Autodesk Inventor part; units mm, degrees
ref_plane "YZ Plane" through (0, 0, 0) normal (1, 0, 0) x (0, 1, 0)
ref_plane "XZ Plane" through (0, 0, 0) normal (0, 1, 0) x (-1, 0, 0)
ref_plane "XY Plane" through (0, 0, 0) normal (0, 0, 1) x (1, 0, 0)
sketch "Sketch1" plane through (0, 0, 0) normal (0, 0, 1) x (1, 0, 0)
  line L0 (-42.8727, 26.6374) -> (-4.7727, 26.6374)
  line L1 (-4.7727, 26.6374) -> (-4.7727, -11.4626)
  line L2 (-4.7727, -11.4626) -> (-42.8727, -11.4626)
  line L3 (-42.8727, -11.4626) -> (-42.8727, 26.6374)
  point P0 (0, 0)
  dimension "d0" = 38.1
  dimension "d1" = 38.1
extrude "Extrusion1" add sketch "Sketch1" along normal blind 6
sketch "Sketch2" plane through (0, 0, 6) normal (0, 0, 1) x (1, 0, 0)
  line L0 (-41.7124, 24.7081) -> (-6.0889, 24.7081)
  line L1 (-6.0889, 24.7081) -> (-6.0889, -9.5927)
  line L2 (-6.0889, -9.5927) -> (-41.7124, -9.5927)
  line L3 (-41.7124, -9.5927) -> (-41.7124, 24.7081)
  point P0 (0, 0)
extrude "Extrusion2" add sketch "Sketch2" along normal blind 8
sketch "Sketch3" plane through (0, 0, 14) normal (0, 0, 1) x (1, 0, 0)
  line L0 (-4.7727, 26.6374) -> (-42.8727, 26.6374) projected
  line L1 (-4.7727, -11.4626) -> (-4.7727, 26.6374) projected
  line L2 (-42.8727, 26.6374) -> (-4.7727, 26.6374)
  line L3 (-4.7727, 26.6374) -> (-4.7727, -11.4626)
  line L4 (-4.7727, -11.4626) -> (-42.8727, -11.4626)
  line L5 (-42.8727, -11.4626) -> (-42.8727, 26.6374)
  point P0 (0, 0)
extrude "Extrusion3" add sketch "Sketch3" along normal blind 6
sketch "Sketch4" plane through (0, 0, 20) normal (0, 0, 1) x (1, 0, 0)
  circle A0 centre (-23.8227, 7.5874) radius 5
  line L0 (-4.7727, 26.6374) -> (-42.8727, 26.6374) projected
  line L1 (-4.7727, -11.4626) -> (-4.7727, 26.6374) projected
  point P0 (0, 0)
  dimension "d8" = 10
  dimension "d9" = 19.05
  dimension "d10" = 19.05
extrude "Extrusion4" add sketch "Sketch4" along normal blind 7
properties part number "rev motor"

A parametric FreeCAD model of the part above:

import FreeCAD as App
import Part
import Sketcher


def add_polygon(sketch, points):
    """Adds a closed chain of lines whose ends are joined by coincident constraints."""
    first, n = sketch.GeometryCount, len(points)
    for a, b in zip(points, points[1:] + points[:1]):
        sketch.addGeometry(Part.LineSegment(App.Vector(*a, 0), App.Vector(*b, 0)), False)
    for i in range(n):
        sketch.addConstraint(Sketcher.Constraint("Coincident", first + i, 2, first + (i + 1) % n, 1))

doc = App.newDocument("Part")
params = doc.addObject("Spreadsheet::Sheet", "Params")
for row, (alias, value) in enumerate([
    ("sketch1_width", "38.1 mm"),
    ("pad1_length", "6 mm"),
    ("pad2_length", "8 mm"),
    ("sketch3_width", "38.1 mm"),
    ("pad3_length", "6 mm"),
    ("sketch4_diameter", "10 mm"),
    ("pad4_length", "7 mm"),
], start=1):
    params.set(f"A{row}", alias)
    params.set(f"B{row}", "=" + value)
    params.setAlias(f"B{row}", alias)

body = doc.addObject("PartDesign::Body", "Body")

sketch1 = doc.addObject("Sketcher::SketchObject", "Sketch")
body.addObject(sketch1)
sketch1.AttachmentSupport = (doc.XY_Plane, [""])
sketch1.MapMode = "FlatFace"
add_polygon(sketch1, [(-4.7727, 26.6374), (-42.8727, 26.6374), (-42.8727, -11.4626), (-4.7727, -11.4626)])
sketch1.addConstraint(Sketcher.Constraint("Horizontal", 0))
sketch1.addConstraint(Sketcher.Constraint("Vertical", 1))
sketch1.addConstraint(Sketcher.Constraint("Horizontal", 2))
sketch1.addConstraint(Sketcher.Constraint("Vertical", 3))
sketch1.addConstraint(Sketcher.Constraint("Equal", 2, 1))
sketch1.addConstraint(Sketcher.Constraint("DistanceX", 0, 2, 0, 1, 38.1))
sketch1.addConstraint(Sketcher.Constraint("DistanceX", 0, 2, -1, 1, 42.8727))
sketch1.addConstraint(Sketcher.Constraint("DistanceY", -1, 1, 0, 2, 26.6374))
sketch1.setExpression("Constraints[9]", "Params.sketch1_width")
pad1 = doc.addObject("PartDesign::Pad", "Pad")
body.addObject(pad1)
pad1.Profile = sketch1
pad1.setExpression("Length", "Params.pad1_length")

sketch2 = doc.addObject("Sketcher::SketchObject", "Sketch001")
body.addObject(sketch2)
sketch2.AttachmentSupport = (doc.XY_Plane, [""])
sketch2.MapMode = "FlatFace"
sketch2.AttachmentOffset = App.Placement(App.Vector(0, 0, 6), App.Rotation())
add_polygon(sketch2, [(-6.0889, 24.7081), (-41.7124, 24.7081), (-41.7124, -9.5927), (-6.0889, -9.5927)])
sketch2.addConstraint(Sketcher.Constraint("Horizontal", 0))
sketch2.addConstraint(Sketcher.Constraint("Vertical", 1))
sketch2.addConstraint(Sketcher.Constraint("Horizontal", 2))
sketch2.addConstraint(Sketcher.Constraint("Vertical", 3))
sketch2.addConstraint(Sketcher.Constraint("DistanceX", 0, 2, 0, 1, 35.6235))
sketch2.addConstraint(Sketcher.Constraint("DistanceY", 1, 2, 1, 1, 34.3008))
sketch2.addConstraint(Sketcher.Constraint("DistanceY", -1, 1, 0, 2, 24.708))
sketch2.addConstraint(Sketcher.Constraint("DistanceX", 2, 2, -1, 1, 6.089))
pad2 = doc.addObject("PartDesign::Pad", "Pad001")
body.addObject(pad2)
pad2.Profile = sketch2
pad2.setExpression("Length", "Params.pad2_length")

sketch3 = doc.addObject("Sketcher::SketchObject", "Sketch002")
body.addObject(sketch3)
sketch3.AttachmentSupport = (doc.XY_Plane, [""])
sketch3.MapMode = "FlatFace"
sketch3.AttachmentOffset = App.Placement(App.Vector(0, 0, 14), App.Rotation())
add_polygon(sketch3, [(-4.7727, -11.4626), (-4.7727, 26.6374), (-42.8727, 26.6374), (-42.8727, -11.4626)])
sketch3.addConstraint(Sketcher.Constraint("Vertical", 0))
sketch3.addConstraint(Sketcher.Constraint("Horizontal", 1))
sketch3.addConstraint(Sketcher.Constraint("Vertical", 2))
sketch3.addConstraint(Sketcher.Constraint("Horizontal", 3))
sketch3.addConstraint(Sketcher.Constraint("Equal", 3, 0))
sketch3.addConstraint(Sketcher.Constraint("DistanceX", 1, 2, 1, 1, 38.1))
sketch3.addConstraint(Sketcher.Constraint("DistanceX", 0, 2, -1, 1, 4.7727))
sketch3.addConstraint(Sketcher.Constraint("DistanceY", -1, 1, 0, 2, 26.6374))
sketch3.setExpression("Constraints[9]", "Params.sketch3_width")
pad3 = doc.addObject("PartDesign::Pad", "Pad002")
body.addObject(pad3)
pad3.Profile = sketch3
pad3.setExpression("Length", "Params.pad3_length")

sketch4 = doc.addObject("Sketcher::SketchObject", "Sketch003")
body.addObject(sketch4)
sketch4.AttachmentSupport = (doc.XY_Plane, [""])
sketch4.MapMode = "FlatFace"
sketch4.AttachmentOffset = App.Placement(App.Vector(0, 0, 20), App.Rotation())
sketch4.addGeometry(Part.Circle(App.Vector(-23.8227, 7.5874, 0), App.Vector(0, 0, 1), 5), False)
sketch4.addConstraint(Sketcher.Constraint("Diameter", 0, 10.0))
sketch4.addConstraint(Sketcher.Constraint("DistanceX", 0, 3, -1, 1, 23.8227))
sketch4.addConstraint(Sketcher.Constraint("DistanceY", -1, 1, 0, 3, 7.5874))
sketch4.setExpression("Constraints[0]", "Params.sketch4_diameter")
pad4 = doc.addObject("PartDesign::Pad", "Pad003")
body.addObject(pad4)
pad4.Profile = sketch4
pad4.setExpression("Length", "Params.pad4_length")

doc.recompute()
